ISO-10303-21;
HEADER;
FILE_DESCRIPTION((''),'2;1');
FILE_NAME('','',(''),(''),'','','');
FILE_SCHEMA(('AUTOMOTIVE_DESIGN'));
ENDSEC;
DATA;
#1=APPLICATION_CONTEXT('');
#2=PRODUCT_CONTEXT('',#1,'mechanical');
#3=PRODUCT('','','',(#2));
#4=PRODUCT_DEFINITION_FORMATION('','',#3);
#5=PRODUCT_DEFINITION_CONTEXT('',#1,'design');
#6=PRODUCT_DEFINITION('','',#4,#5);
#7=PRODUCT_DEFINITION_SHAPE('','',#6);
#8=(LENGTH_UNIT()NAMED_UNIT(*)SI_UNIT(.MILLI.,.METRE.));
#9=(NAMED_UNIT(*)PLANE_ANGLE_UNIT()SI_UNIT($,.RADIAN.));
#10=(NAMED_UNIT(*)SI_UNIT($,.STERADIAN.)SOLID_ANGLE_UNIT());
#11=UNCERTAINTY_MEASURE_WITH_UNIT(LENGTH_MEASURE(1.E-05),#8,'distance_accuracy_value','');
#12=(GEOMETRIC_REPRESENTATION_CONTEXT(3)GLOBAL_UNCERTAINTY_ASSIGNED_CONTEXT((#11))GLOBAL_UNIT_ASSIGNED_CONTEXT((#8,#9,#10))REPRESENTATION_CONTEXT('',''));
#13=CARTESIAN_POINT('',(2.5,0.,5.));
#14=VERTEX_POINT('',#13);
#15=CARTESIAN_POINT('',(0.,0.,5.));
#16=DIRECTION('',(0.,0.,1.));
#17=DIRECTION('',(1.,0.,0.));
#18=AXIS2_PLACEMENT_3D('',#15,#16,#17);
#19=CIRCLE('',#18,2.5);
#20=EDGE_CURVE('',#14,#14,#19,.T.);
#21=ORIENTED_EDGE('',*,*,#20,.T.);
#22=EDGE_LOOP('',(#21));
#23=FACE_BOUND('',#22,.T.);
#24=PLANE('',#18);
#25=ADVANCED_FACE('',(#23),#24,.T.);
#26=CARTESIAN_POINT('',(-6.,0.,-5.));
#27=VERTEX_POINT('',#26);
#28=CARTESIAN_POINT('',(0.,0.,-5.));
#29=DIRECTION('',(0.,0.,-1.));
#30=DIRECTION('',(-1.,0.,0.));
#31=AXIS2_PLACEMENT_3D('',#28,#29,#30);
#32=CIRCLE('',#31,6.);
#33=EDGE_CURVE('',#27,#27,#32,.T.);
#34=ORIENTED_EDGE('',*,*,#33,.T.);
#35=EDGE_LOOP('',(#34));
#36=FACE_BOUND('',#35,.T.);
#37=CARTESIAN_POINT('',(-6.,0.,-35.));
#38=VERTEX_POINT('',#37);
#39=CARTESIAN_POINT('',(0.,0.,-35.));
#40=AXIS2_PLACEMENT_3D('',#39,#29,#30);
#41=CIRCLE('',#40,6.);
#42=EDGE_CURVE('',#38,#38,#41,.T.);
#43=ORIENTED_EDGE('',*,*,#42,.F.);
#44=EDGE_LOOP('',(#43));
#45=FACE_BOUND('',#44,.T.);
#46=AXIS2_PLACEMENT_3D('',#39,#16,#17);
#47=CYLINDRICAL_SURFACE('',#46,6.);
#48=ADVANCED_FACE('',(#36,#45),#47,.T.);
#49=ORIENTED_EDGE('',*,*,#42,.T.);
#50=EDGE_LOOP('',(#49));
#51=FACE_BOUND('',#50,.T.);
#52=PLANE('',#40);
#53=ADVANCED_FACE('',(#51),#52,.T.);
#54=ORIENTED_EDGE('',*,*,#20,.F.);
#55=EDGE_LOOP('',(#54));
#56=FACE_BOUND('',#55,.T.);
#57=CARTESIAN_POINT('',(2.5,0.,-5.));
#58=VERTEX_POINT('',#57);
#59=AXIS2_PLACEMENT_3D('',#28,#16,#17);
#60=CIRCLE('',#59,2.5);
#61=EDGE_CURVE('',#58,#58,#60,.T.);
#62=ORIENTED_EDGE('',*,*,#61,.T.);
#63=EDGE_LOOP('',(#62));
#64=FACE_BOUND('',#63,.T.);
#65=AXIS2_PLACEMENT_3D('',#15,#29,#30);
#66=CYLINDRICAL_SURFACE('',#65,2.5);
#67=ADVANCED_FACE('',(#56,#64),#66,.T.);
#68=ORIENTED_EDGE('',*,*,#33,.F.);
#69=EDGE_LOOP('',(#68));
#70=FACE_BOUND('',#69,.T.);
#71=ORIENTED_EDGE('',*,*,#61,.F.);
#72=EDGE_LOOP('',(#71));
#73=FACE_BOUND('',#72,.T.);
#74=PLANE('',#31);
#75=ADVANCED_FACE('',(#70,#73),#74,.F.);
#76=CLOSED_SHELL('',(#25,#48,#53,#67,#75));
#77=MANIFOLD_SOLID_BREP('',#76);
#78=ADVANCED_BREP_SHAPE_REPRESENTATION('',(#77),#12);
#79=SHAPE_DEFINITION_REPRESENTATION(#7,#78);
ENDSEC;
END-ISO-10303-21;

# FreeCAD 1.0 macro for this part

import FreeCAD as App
import Part
import Sketcher
from FreeCAD import Vector
Q = App.Units.Quantity

doc = App.newDocument("Part")
body = doc.addObject("PartDesign::Body", "Body")

sketch1 = body.newObject("Sketcher::SketchObject", "Sketch")
sketch1.AttachmentSupport = (doc.getObject("XY_Plane"), [""])
sketch1.MapMode = "FlatFace"
sketch1.addGeometry(Part.Circle(Vector(0, 0, 0), Vector(0, 0, 1), 2.5), False)
sketch1.addConstraint([
    Sketcher.Constraint("Coincident", 0, 3, -1, 1),
    Sketcher.Constraint("Diameter", 0, Q("5 mm")),
])
pad1 = body.newObject("PartDesign::Pad", "Pad")
pad1.Profile = sketch1
pad1.Length = 10
pad1.Midplane = True

sketch2 = body.newObject("Sketcher::SketchObject", "Sketch001")
sketch2.AttachmentSupport = (doc.getObject("XY_Plane"), [""])
sketch2.MapMode = "FlatFace"
sketch2.AttachmentOffset = App.Placement(Vector(0, 0, -5), App.Rotation())
sketch2.addGeometry(Part.Circle(Vector(0, 0, 0), Vector(0, 0, 1), 6), False)
sketch2.addConstraint([
    Sketcher.Constraint("Coincident", 0, 3, -1, 1),
    Sketcher.Constraint("Diameter", 0, Q("12 mm")),
])
pad2 = body.newObject("PartDesign::Pad", "Pad001")
pad2.Profile = sketch2
pad2.Length = 30
pad2.Reversed = True

doc.recompute()
